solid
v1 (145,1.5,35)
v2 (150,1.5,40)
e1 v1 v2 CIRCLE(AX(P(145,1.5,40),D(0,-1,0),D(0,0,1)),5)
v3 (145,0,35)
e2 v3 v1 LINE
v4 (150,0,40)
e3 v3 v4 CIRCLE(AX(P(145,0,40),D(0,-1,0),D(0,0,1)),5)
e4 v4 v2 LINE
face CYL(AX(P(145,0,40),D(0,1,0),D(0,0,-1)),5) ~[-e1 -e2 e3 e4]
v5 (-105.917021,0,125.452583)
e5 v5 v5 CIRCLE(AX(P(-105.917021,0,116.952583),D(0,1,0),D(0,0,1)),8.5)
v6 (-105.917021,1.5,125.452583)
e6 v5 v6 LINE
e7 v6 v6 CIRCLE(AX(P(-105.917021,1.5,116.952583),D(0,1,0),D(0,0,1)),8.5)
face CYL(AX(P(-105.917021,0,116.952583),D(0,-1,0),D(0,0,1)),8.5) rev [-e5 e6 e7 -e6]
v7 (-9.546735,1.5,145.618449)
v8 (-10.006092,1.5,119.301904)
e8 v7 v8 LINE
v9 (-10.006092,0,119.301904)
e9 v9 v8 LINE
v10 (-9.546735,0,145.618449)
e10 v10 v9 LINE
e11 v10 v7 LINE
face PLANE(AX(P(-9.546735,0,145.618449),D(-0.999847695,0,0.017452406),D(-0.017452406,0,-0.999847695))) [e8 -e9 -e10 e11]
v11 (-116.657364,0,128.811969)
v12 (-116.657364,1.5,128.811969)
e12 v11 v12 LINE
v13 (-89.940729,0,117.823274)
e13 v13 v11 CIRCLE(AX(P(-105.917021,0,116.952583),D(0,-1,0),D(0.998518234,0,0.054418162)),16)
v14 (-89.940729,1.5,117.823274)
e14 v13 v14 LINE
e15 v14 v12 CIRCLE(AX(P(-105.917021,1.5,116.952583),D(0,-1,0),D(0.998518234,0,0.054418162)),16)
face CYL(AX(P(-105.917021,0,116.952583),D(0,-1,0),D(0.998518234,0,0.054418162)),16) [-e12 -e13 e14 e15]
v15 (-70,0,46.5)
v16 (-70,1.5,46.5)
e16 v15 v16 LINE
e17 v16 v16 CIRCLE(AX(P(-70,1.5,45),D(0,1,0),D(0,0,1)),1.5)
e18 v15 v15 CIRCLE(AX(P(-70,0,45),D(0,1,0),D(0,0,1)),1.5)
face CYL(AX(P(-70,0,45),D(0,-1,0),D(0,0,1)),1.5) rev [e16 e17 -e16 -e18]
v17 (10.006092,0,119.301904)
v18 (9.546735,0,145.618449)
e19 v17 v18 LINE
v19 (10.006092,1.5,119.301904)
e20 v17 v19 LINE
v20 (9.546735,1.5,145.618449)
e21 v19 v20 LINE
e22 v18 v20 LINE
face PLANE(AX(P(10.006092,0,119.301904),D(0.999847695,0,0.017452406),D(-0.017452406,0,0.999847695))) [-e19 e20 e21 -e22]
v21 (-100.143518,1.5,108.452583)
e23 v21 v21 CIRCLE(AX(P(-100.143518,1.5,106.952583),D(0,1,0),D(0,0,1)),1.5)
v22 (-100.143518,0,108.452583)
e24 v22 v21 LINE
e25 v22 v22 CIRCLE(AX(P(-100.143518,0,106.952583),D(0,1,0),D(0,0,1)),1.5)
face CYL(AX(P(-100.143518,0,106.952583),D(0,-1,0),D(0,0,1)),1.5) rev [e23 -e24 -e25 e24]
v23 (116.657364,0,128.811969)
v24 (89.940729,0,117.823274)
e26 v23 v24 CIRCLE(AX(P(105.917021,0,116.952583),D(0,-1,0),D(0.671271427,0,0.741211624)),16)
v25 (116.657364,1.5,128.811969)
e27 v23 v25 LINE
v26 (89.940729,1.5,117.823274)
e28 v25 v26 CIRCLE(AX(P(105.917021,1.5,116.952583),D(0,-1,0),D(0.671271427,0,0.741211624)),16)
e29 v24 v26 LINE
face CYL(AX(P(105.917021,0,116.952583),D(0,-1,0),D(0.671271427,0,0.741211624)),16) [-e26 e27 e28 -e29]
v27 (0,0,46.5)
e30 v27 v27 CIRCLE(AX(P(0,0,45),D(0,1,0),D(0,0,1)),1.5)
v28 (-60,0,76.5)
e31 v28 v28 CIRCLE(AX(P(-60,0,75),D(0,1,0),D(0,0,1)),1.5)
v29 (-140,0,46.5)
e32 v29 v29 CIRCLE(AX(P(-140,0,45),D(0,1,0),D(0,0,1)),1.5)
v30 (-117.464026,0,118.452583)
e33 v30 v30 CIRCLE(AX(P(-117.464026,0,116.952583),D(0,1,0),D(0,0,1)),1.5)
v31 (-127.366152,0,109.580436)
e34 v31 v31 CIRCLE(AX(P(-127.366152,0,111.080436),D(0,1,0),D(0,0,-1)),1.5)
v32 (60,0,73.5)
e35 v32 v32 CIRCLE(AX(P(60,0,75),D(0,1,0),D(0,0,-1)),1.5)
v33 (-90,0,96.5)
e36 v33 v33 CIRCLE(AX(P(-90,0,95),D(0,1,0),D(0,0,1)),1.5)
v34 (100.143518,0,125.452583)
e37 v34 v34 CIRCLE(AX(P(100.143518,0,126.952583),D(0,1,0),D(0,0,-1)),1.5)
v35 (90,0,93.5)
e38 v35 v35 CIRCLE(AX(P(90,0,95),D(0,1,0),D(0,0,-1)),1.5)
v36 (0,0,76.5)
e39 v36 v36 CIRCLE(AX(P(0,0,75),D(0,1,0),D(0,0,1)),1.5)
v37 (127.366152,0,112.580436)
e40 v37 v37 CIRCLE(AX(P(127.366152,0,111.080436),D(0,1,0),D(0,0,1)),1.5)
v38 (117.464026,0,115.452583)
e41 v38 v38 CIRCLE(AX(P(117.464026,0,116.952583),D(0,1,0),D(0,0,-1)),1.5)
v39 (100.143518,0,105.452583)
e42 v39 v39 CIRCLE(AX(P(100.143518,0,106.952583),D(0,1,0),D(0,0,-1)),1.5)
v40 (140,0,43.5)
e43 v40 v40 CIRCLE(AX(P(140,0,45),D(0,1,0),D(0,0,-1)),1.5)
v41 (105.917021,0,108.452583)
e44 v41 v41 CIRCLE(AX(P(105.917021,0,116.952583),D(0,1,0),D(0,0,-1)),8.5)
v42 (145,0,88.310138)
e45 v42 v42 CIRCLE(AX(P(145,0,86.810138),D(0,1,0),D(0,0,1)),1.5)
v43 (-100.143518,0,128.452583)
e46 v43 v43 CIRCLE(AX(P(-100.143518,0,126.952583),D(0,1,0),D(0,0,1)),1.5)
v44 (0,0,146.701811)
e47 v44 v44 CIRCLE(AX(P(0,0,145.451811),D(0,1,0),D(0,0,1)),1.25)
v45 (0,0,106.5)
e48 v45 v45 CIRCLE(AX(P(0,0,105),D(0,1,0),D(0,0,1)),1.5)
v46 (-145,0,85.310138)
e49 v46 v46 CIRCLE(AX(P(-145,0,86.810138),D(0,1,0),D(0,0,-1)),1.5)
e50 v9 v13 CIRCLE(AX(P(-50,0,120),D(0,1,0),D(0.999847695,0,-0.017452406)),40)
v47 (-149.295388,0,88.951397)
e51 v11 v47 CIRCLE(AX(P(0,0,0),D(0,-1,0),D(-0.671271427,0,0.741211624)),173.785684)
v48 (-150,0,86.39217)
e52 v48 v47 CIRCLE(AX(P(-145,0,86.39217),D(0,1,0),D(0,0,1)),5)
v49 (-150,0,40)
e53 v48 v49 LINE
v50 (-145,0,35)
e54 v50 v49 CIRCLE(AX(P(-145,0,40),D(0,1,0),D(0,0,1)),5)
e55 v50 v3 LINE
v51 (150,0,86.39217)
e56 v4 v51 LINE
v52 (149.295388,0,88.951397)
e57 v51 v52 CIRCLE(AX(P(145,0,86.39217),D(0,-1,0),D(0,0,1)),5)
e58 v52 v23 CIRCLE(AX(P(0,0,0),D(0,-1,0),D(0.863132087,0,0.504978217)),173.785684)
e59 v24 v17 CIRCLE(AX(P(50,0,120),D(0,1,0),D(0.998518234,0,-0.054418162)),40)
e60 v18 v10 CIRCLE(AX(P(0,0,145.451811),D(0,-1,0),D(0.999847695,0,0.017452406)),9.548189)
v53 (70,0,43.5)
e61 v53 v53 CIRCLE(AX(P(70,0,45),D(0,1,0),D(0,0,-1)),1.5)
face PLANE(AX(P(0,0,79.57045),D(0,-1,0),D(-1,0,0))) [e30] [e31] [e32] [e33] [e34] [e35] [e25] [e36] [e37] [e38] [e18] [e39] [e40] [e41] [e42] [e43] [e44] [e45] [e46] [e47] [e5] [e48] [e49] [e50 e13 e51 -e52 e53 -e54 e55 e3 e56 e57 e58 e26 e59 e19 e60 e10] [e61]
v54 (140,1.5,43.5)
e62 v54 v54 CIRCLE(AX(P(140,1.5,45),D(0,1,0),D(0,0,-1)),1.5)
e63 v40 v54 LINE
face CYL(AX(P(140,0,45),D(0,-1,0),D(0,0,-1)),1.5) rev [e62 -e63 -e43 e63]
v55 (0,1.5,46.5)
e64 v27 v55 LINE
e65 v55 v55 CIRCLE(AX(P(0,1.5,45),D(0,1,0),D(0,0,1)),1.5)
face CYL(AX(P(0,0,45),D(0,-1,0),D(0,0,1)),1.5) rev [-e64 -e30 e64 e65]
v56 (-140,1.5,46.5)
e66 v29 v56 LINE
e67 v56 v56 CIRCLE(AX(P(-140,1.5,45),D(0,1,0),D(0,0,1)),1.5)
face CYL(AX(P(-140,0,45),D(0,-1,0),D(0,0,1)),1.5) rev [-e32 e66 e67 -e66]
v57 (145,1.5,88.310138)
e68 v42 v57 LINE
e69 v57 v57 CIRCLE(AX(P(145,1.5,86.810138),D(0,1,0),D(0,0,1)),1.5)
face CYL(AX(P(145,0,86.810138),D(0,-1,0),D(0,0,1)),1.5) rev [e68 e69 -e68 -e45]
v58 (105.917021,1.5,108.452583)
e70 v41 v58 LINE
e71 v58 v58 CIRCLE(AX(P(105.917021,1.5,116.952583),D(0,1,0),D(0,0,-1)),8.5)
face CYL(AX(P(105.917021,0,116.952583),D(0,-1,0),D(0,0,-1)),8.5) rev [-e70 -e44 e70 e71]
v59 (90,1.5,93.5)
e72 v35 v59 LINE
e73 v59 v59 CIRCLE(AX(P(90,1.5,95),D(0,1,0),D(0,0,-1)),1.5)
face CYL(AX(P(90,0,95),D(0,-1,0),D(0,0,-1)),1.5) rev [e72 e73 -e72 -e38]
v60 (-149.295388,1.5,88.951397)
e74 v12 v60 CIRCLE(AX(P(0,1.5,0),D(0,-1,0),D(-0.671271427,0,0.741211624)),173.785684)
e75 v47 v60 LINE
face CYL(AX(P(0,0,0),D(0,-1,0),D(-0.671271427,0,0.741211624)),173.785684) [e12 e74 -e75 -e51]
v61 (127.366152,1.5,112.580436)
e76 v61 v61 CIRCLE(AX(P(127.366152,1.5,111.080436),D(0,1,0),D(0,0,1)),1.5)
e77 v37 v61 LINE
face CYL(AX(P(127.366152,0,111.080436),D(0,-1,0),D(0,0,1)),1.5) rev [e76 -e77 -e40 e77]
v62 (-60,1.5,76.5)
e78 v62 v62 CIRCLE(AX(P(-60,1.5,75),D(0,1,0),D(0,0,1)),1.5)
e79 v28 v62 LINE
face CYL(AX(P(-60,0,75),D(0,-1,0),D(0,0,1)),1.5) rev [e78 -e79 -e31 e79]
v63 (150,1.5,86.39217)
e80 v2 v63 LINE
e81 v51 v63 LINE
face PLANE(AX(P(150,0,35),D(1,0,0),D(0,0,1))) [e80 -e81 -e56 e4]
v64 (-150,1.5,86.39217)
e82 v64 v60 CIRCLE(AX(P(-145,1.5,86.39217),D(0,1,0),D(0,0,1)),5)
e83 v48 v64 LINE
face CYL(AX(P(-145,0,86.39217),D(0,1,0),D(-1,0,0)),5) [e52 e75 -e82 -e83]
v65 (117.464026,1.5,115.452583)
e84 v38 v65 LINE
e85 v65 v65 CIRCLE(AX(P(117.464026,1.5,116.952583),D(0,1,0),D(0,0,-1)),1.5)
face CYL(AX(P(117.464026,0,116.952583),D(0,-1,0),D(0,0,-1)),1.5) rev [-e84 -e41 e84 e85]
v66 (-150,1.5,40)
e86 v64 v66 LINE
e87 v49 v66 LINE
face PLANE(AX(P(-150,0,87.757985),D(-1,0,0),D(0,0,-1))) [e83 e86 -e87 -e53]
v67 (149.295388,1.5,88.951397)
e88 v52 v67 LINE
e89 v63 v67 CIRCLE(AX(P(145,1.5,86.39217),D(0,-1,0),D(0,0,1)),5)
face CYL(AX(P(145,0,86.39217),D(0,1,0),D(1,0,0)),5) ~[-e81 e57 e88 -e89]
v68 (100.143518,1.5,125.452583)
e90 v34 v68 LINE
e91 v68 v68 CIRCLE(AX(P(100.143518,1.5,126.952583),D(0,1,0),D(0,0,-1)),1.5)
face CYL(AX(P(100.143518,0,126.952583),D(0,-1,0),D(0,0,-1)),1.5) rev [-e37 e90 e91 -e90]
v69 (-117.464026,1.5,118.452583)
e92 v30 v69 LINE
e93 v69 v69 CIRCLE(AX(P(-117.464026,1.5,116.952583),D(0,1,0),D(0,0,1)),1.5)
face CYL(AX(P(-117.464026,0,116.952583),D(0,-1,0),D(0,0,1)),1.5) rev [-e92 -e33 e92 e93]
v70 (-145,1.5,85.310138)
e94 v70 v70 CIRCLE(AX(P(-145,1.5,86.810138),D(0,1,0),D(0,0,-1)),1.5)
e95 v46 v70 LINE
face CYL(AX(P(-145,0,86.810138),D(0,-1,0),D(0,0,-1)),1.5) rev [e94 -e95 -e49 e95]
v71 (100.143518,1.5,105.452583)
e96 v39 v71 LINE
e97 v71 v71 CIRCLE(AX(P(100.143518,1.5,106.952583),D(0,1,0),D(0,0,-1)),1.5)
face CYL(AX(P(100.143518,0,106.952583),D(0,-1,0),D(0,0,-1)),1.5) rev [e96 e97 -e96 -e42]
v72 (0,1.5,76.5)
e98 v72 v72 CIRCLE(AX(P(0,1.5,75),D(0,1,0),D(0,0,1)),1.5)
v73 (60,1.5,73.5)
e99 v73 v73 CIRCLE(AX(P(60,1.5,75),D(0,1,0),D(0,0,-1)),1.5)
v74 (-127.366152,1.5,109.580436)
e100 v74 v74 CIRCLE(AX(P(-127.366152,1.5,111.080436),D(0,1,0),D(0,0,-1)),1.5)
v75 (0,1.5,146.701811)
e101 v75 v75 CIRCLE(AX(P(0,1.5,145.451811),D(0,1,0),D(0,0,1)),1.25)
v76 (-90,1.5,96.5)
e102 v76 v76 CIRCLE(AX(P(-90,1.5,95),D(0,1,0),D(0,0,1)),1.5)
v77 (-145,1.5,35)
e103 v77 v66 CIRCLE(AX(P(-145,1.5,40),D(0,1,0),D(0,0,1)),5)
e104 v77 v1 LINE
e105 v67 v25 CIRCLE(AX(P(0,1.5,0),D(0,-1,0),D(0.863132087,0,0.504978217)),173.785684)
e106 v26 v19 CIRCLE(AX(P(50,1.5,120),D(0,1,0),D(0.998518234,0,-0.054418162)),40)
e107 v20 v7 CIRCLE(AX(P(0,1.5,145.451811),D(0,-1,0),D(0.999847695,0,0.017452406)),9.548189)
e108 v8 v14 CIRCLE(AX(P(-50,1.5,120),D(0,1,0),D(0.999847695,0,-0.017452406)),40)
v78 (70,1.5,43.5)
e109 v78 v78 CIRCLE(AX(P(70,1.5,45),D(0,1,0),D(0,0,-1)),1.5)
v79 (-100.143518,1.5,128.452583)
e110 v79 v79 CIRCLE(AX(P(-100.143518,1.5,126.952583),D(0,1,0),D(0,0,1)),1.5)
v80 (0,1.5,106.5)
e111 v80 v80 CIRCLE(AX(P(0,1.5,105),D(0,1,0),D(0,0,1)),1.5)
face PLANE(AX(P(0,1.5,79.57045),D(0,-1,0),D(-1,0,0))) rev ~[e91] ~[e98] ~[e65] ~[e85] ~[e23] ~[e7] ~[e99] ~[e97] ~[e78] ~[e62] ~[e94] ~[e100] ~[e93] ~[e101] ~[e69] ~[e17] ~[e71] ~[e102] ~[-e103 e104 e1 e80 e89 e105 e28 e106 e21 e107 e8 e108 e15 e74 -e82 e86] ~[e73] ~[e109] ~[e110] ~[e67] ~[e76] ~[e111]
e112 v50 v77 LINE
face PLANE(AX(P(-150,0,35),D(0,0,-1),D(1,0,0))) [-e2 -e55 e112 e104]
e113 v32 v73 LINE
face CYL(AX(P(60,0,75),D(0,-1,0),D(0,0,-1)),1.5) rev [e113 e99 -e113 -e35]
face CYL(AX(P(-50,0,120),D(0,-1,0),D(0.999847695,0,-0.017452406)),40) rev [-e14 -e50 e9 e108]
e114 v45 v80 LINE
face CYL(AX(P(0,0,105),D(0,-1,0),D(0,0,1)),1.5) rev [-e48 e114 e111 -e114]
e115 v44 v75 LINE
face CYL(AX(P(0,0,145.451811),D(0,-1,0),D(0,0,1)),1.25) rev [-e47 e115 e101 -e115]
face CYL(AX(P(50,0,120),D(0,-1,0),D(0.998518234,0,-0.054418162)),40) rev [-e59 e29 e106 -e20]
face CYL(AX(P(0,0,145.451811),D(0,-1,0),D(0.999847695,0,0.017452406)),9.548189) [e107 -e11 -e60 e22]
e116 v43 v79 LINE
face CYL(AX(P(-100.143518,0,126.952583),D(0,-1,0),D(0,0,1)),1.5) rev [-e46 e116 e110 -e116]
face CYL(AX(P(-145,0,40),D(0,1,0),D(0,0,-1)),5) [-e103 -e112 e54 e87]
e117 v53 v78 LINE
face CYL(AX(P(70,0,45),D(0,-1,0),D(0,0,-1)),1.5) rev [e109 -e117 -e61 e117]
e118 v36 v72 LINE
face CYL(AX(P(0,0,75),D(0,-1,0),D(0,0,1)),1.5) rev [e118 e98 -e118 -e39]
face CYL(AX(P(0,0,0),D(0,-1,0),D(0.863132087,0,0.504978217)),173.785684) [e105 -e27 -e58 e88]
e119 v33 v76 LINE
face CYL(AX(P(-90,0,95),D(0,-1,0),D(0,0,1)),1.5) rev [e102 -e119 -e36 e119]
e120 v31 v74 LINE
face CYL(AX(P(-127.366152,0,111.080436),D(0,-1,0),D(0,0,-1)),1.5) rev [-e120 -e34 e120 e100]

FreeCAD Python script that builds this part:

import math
import FreeCAD as App
import Part
import Sketcher
Q = App.Units.Quantity


def edges_at(feature, points):
    """Names of the edges that pass closest to the given points."""
    edges = feature.Shape.Edges
    near = lambda p: min(range(len(edges)), key=lambda i: edges[i].distToShape(Part.Vertex(*p))[0])
    return sorted({f"Edge{near(p) + 1}" for p in points})

doc = App.newDocument("Part")
body = doc.addObject("PartDesign::Body", "Body")

sketch1 = body.newObject("Sketcher::SketchObject", "Sketch")
sketch1.AttachmentSupport = (doc.getObject("XZ_Plane"), [""])
sketch1.MapMode = "FlatFace"
sketch1.addGeometry([
    Part.LineSegment(App.Vector(150, 35, 0), App.Vector(-150, 35, 0)),
    Part.LineSegment(App.Vector(-150, 35, 0), App.Vector(-150, 87.757985, 0)),
    Part.ArcOfCircle(Part.Circle(App.Vector(0, 0, 0), App.Vector(0, 0, 1), 173.785684), math.radians(132.16527), math.radians(149.670094)),
    Part.ArcOfCircle(Part.Circle(App.Vector(-105.917021, 116.952583, 0), App.Vector(0, 0, 1), 16), math.radians(3.119472), math.radians(132.16527)),
    Part.ArcOfCircle(Part.Circle(App.Vector(-50, 120, 0), App.Vector(0, 0, 1), 40), math.radians(-176.880528), math.radians(-1)),
    Part.LineSegment(App.Vector(-10.006092, 119.301904, 0), App.Vector(-9.546735, 145.618449, 0)),
    Part.ArcOfCircle(Part.Circle(App.Vector(0, 145.451811, 0), App.Vector(0, 0, 1), 9.548189), math.radians(1), math.radians(179)),
    Part.LineSegment(App.Vector(9.546735, 145.618449, 0), App.Vector(10.006092, 119.301904, 0)),
    Part.ArcOfCircle(Part.Circle(App.Vector(50, 120, 0), App.Vector(0, 0, 1), 40), math.radians(-179), math.radians(-3.119472)),
    Part.ArcOfCircle(Part.Circle(App.Vector(105.917021, 116.952583, 0), App.Vector(0, 0, 1), 16), math.radians(47.83473), math.radians(176.880528)),
    Part.ArcOfCircle(Part.Circle(App.Vector(0, 0, 0), App.Vector(0, 0, 1), 173.785684), math.radians(30.329906), math.radians(47.83473)),
    Part.LineSegment(App.Vector(150, 87.757985, 0), App.Vector(150, 35, 0)),
    Part.Circle(App.Vector(100.143518, 126.952583, 0), App.Vector(0, 0, 1), 1.5),
    Part.Circle(App.Vector(117.464026, 116.952583, 0), App.Vector(0, 0, 1), 1.5),
    Part.Circle(App.Vector(127.366152, 111.080436, 0), App.Vector(0, 0, 1), 1.5),
    Part.Circle(App.Vector(105.917021, 116.952583, 0), App.Vector(0, 0, 1), 8.5),
    Part.Circle(App.Vector(100.143518, 106.952583, 0), App.Vector(0, 0, 1), 1.5),
    Part.Circle(App.Vector(0, 145.451811, 0), App.Vector(0, 0, 1), 1.25),
    Part.Circle(App.Vector(-100.143518, 126.952583, 0), App.Vector(0, 0, 1), 1.5),
    Part.Circle(App.Vector(0, 105, 0), App.Vector(0, 0, 1), 1.5),
    Part.Circle(App.Vector(-105.917021, 116.952583, 0), App.Vector(0, 0, 1), 8.5),
    Part.Circle(App.Vector(-117.464026, 116.952583, 0), App.Vector(0, 0, 1), 1.5),
    Part.Circle(App.Vector(-127.366152, 111.080436, 0), App.Vector(0, 0, 1), 1.5),
    Part.Circle(App.Vector(-100.143518, 106.952583, 0), App.Vector(0, 0, 1), 1.5),
    Part.Circle(App.Vector(145, 86.810138, 0), App.Vector(0, 0, 1), 1.5),
    Part.Circle(App.Vector(90, 95, 0), App.Vector(0, 0, 1), 1.5),
    Part.Circle(App.Vector(60, 75, 0), App.Vector(0, 0, 1), 1.5),
    Part.Circle(App.Vector(140, 45, 0), App.Vector(0, 0, 1), 1.5),
    Part.Circle(App.Vector(70, 45, 0), App.Vector(0, 0, 1), 1.5),
    Part.Circle(App.Vector(0, 75, 0), App.Vector(0, 0, 1), 1.5),
    Part.Circle(App.Vector(-60, 75, 0), App.Vector(0, 0, 1), 1.5),
    Part.Circle(App.Vector(-90, 95, 0), App.Vector(0, 0, 1), 1.5),
    Part.Circle(App.Vector(-145, 86.810138, 0), App.Vector(0, 0, 1), 1.5),
    Part.Circle(App.Vector(0, 45, 0), App.Vector(0, 0, 1), 1.5),
    Part.Circle(App.Vector(-70, 45, 0), App.Vector(0, 0, 1), 1.5),
    Part.Circle(App.Vector(-140, 45, 0), App.Vector(0, 0, 1), 1.5),
], False)
sketch1.addConstraint([
    Sketcher.Constraint("Coincident", 0, 2, 1, 1),
    Sketcher.Constraint("Coincident", 1, 2, 2, 2),
    Sketcher.Constraint("Tangent", 2, 1, 3, 2),
    Sketcher.Constraint("Tangent", 3, 1, 4, 1),
    Sketcher.Constraint("Tangent", 4, 2, 5, 1),
    Sketcher.Constraint("Tangent", 5, 2, 6, 2),
    Sketcher.Constraint("Tangent", 6, 1, 7, 1),
    Sketcher.Constraint("Tangent", 7, 2, 8, 1),
    Sketcher.Constraint("Tangent", 8, 2, 9, 2),
    Sketcher.Constraint("Tangent", 9, 1, 10, 2),
    Sketcher.Constraint("Coincident", 10, 1, 11, 1),
    Sketcher.Constraint("Coincident", 11, 2, 0, 1),
    Sketcher.Constraint("Horizontal", 0),
    Sketcher.Constraint("Vertical", 1),
    Sketcher.Constraint("Vertical", 11),
    Sketcher.Constraint("Coincident", 2, 3, -1, 1),
    Sketcher.Constraint("Coincident", 10, 3, -1, 1),
    Sketcher.Constraint("Coincident", 15, 3, 9, 3),
    Sketcher.Constraint("Coincident", 17, 3, 6, 3),
    Sketcher.Constraint("Coincident", 20, 3, 3, 3),
    Sketcher.Constraint("Equal", 4, 8),
    Sketcher.Constraint("Equal", 3, 9),
    Sketcher.Constraint("Equal", 2, 10),
    Sketcher.Constraint("Equal", 12, 13),
    Sketcher.Constraint("Equal", 13, 14),
    Sketcher.Constraint("Equal", 14, 16),
    Sketcher.Constraint("Equal", 16, 18),
    Sketcher.Constraint("Equal", 18, 19),
    Sketcher.Constraint("Equal", 15, 20),
    Sketcher.Constraint("Equal", 19, 21),
    Sketcher.Constraint("Equal", 21, 22),
    Sketcher.Constraint("Equal", 22, 23),
    Sketcher.Constraint("Equal", 23, 24),
    Sketcher.Constraint("Equal", 24, 25),
    Sketcher.Constraint("Equal", 25, 26),
    Sketcher.Constraint("Equal", 26, 27),
    Sketcher.Constraint("Equal", 27, 28),
    Sketcher.Constraint("Equal", 28, 29),
    Sketcher.Constraint("Equal", 29, 30),
    Sketcher.Constraint("Equal", 30, 31),
    Sketcher.Constraint("Equal", 31, 32),
    Sketcher.Constraint("Equal", 32, 33),
    Sketcher.Constraint("Equal", 33, 34),
    Sketcher.Constraint("Equal", 34, 35),
    Sketcher.Constraint("Symmetric", 4, 3, 8, 3, -2),
    Sketcher.Constraint("Symmetric", 12, 3, 18, 3, -2),
    Sketcher.Constraint("Symmetric", 13, 3, 21, 3, -2),
    Sketcher.Constraint("Symmetric", 14, 3, 22, 3, -2),
    Sketcher.Constraint("Symmetric", 16, 3, 23, 3, -2),
    Sketcher.Constraint("Symmetric", 26, 3, 30, 3, -2),
    Sketcher.Constraint("Symmetric", 25, 3, 31, 3, -2),
    Sketcher.Constraint("Symmetric", 24, 3, 32, 3, -2),
    Sketcher.Constraint("Symmetric", 28, 3, 34, 3, -2),
    Sketcher.Constraint("Symmetric", 27, 3, 35, 3, -2),
    Sketcher.Constraint("PointOnObject", 6, 3, -2),
    Sketcher.Constraint("PointOnObject", 19, 3, -2),
    Sketcher.Constraint("PointOnObject", 29, 3, -2),
    Sketcher.Constraint("PointOnObject", 33, 3, -2),
    Sketcher.Constraint("Horizontal", 9, 3, 13, 3),
    Sketcher.Constraint("Horizontal", 27, 3, 28, 3),
    Sketcher.Constraint("Horizontal", 26, 3, 29, 3),
    Sketcher.Constraint("Horizontal", 28, 3, 33, 3),
    Sketcher.Constraint("Horizontal", 1, 2, 10, 1),
    Sketcher.Constraint("Vertical", 12, 3, 16, 3),
    Sketcher.Constraint("Diameter", 12, Q("3 mm")),
    Sketcher.Constraint("Diameter", 15, Q("17 mm")),
    Sketcher.Constraint("Radius", 3, Q("16 mm")),
    Sketcher.Constraint("Radius", 4, Q("40 mm")),
    Sketcher.Constraint("Diameter", 17, Q("2.5 mm")),
    Sketcher.Constraint("DistanceX", 0, 2, 0, 1, Q("300 mm")),
    Sketcher.Constraint("Angle", 5, Q("89 deg")),
    Sketcher.Constraint("DistanceX", 4, 3, -1, 1, Q("50 mm")),
    Sketcher.Constraint("DistanceY", -1, 1, 4, 3, Q("120 mm")),
    Sketcher.Constraint("DistanceY", -1, 1, 19, 3, Q("105 mm")),
    Sketcher.Constraint("DistanceX", -1, 1, 24, 3, Q("145 mm")),
    Sketcher.Constraint("DistanceX", -1, 1, 25, 3, Q("90 mm")),
    Sketcher.Constraint("DistanceY", -1, 1, 25, 3, Q("95 mm")),
    Sketcher.Constraint("DistanceX", -1, 1, 26, 3, Q("60 mm")),
    Sketcher.Constraint("DistanceY", -1, 1, 26, 3, Q("75 mm")),
    Sketcher.Constraint("DistanceX", -1, 1, 27, 3, Q("140 mm")),
    Sketcher.Constraint("DistanceY", -1, 1, 27, 3, Q("45 mm")),
    Sketcher.Constraint("DistanceX", -1, 1, 28, 3, Q("70 mm")),
    Sketcher.Constraint("DistanceY", -1, 1, 0, 2, Q("35 mm")),
    Sketcher.Constraint("DistanceY", 9, 3, 12, 3, Q("10 mm")),
    Sketcher.Constraint("DistanceY", 16, 3, 9, 3, Q("10 mm")),
    Sketcher.Constraint("Radius", 6, Q("9.548189 mm")),
    Sketcher.Constraint("Radius", 2, Q("173.785684 mm")),
    Sketcher.Constraint("DistanceY", 24, 3, 14, 3, Q("24.270299 mm")),
    Sketcher.Constraint("DistanceX", -1, 1, 12, 3, Q("100.143518 mm")),
    Sketcher.Constraint("DistanceX", -1, 1, 14, 3, Q("127.366152 mm")),
    Sketcher.Constraint("DistanceX", 12, 3, 13, 3, Q("17.320508 mm")),
    Sketcher.Constraint("DistanceY", 1, 2, 22, 3, Q("23.322452 mm")),
])
pad1 = body.newObject("PartDesign::Pad", "Pad")
pad1.Profile = sketch1
pad1.Length = 1.5
pad1.Reversed = True
doc.recompute()

fillet = body.newObject("PartDesign::Fillet", "Fillet")
fillet.Base = (pad1, edges_at(pad1, [
    (-150, 0.75, 35),
    (150, 0.75, 35),
    (150, 0.75, 87.758),
    (-150, 0.75, 87.758),
]))
fillet.Radius = 5

doc.recompute()
